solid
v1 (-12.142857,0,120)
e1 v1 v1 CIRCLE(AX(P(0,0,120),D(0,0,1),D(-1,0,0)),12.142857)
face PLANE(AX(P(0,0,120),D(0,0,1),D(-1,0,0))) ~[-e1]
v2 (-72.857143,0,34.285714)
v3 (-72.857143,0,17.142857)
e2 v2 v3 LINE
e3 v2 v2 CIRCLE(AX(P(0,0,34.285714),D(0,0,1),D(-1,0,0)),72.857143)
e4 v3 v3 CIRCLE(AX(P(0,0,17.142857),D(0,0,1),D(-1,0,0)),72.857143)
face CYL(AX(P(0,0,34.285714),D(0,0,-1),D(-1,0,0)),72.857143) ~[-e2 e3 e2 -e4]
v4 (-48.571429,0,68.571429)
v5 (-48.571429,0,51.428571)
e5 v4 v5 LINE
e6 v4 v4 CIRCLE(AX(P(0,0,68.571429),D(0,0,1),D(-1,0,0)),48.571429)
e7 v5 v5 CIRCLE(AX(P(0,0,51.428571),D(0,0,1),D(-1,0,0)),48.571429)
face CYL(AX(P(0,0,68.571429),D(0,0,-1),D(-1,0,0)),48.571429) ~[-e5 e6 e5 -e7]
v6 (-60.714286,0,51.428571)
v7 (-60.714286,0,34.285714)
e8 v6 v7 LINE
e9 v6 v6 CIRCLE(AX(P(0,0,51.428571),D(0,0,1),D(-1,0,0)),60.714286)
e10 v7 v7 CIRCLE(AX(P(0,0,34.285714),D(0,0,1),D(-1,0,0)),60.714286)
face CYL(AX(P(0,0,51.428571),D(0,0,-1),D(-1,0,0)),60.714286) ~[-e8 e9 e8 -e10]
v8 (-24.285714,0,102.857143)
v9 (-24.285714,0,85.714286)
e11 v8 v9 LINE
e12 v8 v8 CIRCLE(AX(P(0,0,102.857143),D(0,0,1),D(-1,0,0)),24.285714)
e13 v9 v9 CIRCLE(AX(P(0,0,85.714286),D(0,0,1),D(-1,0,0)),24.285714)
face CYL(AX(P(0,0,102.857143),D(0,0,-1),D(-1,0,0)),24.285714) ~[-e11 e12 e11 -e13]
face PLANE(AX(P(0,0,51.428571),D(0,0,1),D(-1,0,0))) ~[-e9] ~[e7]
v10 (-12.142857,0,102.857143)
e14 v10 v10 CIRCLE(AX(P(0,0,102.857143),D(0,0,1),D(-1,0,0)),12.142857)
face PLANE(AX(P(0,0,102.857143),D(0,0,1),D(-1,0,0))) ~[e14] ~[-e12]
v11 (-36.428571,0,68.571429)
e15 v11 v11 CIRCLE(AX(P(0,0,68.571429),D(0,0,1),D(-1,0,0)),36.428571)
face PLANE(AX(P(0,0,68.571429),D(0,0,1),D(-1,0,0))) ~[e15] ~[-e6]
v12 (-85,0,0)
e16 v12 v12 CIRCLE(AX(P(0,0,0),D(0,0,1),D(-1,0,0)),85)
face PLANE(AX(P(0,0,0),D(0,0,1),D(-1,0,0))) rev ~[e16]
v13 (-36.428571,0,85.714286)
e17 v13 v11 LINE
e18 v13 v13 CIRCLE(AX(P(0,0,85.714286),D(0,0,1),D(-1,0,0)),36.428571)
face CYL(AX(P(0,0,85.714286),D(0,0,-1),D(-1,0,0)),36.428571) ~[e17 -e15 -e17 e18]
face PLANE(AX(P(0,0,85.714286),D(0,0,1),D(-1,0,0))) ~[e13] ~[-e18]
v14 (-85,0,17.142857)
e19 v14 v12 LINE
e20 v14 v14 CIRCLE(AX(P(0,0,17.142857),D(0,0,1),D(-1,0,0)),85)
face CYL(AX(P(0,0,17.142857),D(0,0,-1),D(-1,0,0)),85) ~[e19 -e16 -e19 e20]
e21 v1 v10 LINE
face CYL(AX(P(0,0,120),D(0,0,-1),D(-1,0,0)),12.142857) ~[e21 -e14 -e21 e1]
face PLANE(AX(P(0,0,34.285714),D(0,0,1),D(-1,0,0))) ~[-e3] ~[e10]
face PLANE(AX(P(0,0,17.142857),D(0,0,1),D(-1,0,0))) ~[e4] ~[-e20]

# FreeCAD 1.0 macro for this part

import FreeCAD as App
import Part
import Sketcher

V = App.Vector
Q = App.Units.Quantity

doc = App.newDocument("Part")
body = doc.addObject("PartDesign::Body", "Body")

# Sketch on XZ plane
sketch1 = body.newObject("Sketcher::SketchObject", "Sketch")
sketch1.AttachmentSupport = (doc.getObject("XZ_Plane"), [""])
sketch1.MapMode = "FlatFace"
sketch1.addGeometry([
    Part.LineSegment(V(-85, 0, 0), V(0, 0, 0)),  # 0
    Part.LineSegment(V(0, 0, 0), V(0, 120, 0)),  # 1
    Part.LineSegment(V(0, 120, 0), V(-12.142857, 120, 0)),  # 2
    Part.LineSegment(V(-12.142857, 120, 0), V(-12.142857, 102.857143, 0)),  # 3
    Part.LineSegment(V(-12.142857, 102.857143, 0), V(-24.285714, 102.857143, 0)),  # 4
    Part.LineSegment(V(-24.285714, 102.857143, 0), V(-24.285714, 85.714286, 0)),  # 5
    Part.LineSegment(V(-24.285714, 85.714286, 0), V(-36.428571, 85.714286, 0)),  # 6
    Part.LineSegment(V(-36.428571, 85.714286, 0), V(-36.428571, 68.571429, 0)),  # 7
    Part.LineSegment(V(-36.428571, 68.571429, 0), V(-48.571429, 68.571429, 0)),  # 8
    Part.LineSegment(V(-48.571429, 68.571429, 0), V(-48.571429, 51.428571, 0)),  # 9
    Part.LineSegment(V(-48.571429, 51.428571, 0), V(-60.714286, 51.428571, 0)),  # 10
    Part.LineSegment(V(-60.714286, 51.428571, 0), V(-60.714286, 34.285714, 0)),  # 11
    Part.LineSegment(V(-60.714286, 34.285714, 0), V(-72.857143, 34.285714, 0)),  # 12
    Part.LineSegment(V(-72.857143, 34.285714, 0), V(-72.857143, 17.142857, 0)),  # 13
    Part.LineSegment(V(-72.857143, 17.142857, 0), V(-85, 17.142857, 0)),  # 14
    Part.LineSegment(V(-85, 17.142857, 0), V(-85, 0, 0)),  # 15
], False)
sketch1.addConstraint([
    Sketcher.Constraint("Coincident", 0, 2, 1, 1),
    Sketcher.Constraint("Coincident", 1, 2, 2, 1),
    Sketcher.Constraint("Coincident", 2, 2, 3, 1),
    Sketcher.Constraint("Coincident", 3, 2, 4, 1),
    Sketcher.Constraint("Coincident", 4, 2, 5, 1),
    Sketcher.Constraint("Coincident", 5, 2, 6, 1),
    Sketcher.Constraint("Coincident", 6, 2, 7, 1),
    Sketcher.Constraint("Coincident", 7, 2, 8, 1),
    Sketcher.Constraint("Coincident", 8, 2, 9, 1),
    Sketcher.Constraint("Coincident", 9, 2, 10, 1),
    Sketcher.Constraint("Coincident", 10, 2, 11, 1),
    Sketcher.Constraint("Coincident", 11, 2, 12, 1),
    Sketcher.Constraint("Coincident", 12, 2, 13, 1),
    Sketcher.Constraint("Coincident", 13, 2, 14, 1),
    Sketcher.Constraint("Coincident", 14, 2, 15, 1),
    Sketcher.Constraint("Coincident", 15, 2, 0, 1),
    Sketcher.Constraint("Horizontal", 0),
    Sketcher.Constraint("Vertical", 1),
    Sketcher.Constraint("Horizontal", 2),
    Sketcher.Constraint("Vertical", 3),
    Sketcher.Constraint("Horizontal", 4),
    Sketcher.Constraint("Vertical", 5),
    Sketcher.Constraint("Horizontal", 6),
    Sketcher.Constraint("Vertical", 7),
    Sketcher.Constraint("Horizontal", 8),
    Sketcher.Constraint("Vertical", 9),
    Sketcher.Constraint("Horizontal", 10),
    Sketcher.Constraint("Vertical", 11),
    Sketcher.Constraint("Horizontal", 12),
    Sketcher.Constraint("Vertical", 13),
    Sketcher.Constraint("Horizontal", 14),
    Sketcher.Constraint("Vertical", 15),
    Sketcher.Constraint("Coincident", 0, 2, -1, 1),
    Sketcher.Constraint("Equal", 2, 4),
    Sketcher.Constraint("Equal", 4, 6),
    Sketcher.Constraint("Equal", 6, 8),
    Sketcher.Constraint("Equal", 8, 10),
    Sketcher.Constraint("Equal", 10, 12),
    Sketcher.Constraint("Equal", 12, 14),
    Sketcher.Constraint("Equal", 3, 5),
    Sketcher.Constraint("Equal", 5, 7),
    Sketcher.Constraint("Equal", 7, 9),
    Sketcher.Constraint("Equal", 9, 11),
    Sketcher.Constraint("Equal", 11, 13),
    Sketcher.Constraint("Equal", 13, 15),
    Sketcher.Constraint("DistanceX", 0, 1, 0, 2, Q("85 mm")),
    Sketcher.Constraint("DistanceY", 1, 1, 1, 2, Q("120 mm")),
])
revolution = body.newObject("PartDesign::Revolution", "Revolution")
revolution.Profile = sketch1
revolution.ReferenceAxis = (sketch1, ["V_Axis"])
revolution.Angle = 360

doc.recompute()
